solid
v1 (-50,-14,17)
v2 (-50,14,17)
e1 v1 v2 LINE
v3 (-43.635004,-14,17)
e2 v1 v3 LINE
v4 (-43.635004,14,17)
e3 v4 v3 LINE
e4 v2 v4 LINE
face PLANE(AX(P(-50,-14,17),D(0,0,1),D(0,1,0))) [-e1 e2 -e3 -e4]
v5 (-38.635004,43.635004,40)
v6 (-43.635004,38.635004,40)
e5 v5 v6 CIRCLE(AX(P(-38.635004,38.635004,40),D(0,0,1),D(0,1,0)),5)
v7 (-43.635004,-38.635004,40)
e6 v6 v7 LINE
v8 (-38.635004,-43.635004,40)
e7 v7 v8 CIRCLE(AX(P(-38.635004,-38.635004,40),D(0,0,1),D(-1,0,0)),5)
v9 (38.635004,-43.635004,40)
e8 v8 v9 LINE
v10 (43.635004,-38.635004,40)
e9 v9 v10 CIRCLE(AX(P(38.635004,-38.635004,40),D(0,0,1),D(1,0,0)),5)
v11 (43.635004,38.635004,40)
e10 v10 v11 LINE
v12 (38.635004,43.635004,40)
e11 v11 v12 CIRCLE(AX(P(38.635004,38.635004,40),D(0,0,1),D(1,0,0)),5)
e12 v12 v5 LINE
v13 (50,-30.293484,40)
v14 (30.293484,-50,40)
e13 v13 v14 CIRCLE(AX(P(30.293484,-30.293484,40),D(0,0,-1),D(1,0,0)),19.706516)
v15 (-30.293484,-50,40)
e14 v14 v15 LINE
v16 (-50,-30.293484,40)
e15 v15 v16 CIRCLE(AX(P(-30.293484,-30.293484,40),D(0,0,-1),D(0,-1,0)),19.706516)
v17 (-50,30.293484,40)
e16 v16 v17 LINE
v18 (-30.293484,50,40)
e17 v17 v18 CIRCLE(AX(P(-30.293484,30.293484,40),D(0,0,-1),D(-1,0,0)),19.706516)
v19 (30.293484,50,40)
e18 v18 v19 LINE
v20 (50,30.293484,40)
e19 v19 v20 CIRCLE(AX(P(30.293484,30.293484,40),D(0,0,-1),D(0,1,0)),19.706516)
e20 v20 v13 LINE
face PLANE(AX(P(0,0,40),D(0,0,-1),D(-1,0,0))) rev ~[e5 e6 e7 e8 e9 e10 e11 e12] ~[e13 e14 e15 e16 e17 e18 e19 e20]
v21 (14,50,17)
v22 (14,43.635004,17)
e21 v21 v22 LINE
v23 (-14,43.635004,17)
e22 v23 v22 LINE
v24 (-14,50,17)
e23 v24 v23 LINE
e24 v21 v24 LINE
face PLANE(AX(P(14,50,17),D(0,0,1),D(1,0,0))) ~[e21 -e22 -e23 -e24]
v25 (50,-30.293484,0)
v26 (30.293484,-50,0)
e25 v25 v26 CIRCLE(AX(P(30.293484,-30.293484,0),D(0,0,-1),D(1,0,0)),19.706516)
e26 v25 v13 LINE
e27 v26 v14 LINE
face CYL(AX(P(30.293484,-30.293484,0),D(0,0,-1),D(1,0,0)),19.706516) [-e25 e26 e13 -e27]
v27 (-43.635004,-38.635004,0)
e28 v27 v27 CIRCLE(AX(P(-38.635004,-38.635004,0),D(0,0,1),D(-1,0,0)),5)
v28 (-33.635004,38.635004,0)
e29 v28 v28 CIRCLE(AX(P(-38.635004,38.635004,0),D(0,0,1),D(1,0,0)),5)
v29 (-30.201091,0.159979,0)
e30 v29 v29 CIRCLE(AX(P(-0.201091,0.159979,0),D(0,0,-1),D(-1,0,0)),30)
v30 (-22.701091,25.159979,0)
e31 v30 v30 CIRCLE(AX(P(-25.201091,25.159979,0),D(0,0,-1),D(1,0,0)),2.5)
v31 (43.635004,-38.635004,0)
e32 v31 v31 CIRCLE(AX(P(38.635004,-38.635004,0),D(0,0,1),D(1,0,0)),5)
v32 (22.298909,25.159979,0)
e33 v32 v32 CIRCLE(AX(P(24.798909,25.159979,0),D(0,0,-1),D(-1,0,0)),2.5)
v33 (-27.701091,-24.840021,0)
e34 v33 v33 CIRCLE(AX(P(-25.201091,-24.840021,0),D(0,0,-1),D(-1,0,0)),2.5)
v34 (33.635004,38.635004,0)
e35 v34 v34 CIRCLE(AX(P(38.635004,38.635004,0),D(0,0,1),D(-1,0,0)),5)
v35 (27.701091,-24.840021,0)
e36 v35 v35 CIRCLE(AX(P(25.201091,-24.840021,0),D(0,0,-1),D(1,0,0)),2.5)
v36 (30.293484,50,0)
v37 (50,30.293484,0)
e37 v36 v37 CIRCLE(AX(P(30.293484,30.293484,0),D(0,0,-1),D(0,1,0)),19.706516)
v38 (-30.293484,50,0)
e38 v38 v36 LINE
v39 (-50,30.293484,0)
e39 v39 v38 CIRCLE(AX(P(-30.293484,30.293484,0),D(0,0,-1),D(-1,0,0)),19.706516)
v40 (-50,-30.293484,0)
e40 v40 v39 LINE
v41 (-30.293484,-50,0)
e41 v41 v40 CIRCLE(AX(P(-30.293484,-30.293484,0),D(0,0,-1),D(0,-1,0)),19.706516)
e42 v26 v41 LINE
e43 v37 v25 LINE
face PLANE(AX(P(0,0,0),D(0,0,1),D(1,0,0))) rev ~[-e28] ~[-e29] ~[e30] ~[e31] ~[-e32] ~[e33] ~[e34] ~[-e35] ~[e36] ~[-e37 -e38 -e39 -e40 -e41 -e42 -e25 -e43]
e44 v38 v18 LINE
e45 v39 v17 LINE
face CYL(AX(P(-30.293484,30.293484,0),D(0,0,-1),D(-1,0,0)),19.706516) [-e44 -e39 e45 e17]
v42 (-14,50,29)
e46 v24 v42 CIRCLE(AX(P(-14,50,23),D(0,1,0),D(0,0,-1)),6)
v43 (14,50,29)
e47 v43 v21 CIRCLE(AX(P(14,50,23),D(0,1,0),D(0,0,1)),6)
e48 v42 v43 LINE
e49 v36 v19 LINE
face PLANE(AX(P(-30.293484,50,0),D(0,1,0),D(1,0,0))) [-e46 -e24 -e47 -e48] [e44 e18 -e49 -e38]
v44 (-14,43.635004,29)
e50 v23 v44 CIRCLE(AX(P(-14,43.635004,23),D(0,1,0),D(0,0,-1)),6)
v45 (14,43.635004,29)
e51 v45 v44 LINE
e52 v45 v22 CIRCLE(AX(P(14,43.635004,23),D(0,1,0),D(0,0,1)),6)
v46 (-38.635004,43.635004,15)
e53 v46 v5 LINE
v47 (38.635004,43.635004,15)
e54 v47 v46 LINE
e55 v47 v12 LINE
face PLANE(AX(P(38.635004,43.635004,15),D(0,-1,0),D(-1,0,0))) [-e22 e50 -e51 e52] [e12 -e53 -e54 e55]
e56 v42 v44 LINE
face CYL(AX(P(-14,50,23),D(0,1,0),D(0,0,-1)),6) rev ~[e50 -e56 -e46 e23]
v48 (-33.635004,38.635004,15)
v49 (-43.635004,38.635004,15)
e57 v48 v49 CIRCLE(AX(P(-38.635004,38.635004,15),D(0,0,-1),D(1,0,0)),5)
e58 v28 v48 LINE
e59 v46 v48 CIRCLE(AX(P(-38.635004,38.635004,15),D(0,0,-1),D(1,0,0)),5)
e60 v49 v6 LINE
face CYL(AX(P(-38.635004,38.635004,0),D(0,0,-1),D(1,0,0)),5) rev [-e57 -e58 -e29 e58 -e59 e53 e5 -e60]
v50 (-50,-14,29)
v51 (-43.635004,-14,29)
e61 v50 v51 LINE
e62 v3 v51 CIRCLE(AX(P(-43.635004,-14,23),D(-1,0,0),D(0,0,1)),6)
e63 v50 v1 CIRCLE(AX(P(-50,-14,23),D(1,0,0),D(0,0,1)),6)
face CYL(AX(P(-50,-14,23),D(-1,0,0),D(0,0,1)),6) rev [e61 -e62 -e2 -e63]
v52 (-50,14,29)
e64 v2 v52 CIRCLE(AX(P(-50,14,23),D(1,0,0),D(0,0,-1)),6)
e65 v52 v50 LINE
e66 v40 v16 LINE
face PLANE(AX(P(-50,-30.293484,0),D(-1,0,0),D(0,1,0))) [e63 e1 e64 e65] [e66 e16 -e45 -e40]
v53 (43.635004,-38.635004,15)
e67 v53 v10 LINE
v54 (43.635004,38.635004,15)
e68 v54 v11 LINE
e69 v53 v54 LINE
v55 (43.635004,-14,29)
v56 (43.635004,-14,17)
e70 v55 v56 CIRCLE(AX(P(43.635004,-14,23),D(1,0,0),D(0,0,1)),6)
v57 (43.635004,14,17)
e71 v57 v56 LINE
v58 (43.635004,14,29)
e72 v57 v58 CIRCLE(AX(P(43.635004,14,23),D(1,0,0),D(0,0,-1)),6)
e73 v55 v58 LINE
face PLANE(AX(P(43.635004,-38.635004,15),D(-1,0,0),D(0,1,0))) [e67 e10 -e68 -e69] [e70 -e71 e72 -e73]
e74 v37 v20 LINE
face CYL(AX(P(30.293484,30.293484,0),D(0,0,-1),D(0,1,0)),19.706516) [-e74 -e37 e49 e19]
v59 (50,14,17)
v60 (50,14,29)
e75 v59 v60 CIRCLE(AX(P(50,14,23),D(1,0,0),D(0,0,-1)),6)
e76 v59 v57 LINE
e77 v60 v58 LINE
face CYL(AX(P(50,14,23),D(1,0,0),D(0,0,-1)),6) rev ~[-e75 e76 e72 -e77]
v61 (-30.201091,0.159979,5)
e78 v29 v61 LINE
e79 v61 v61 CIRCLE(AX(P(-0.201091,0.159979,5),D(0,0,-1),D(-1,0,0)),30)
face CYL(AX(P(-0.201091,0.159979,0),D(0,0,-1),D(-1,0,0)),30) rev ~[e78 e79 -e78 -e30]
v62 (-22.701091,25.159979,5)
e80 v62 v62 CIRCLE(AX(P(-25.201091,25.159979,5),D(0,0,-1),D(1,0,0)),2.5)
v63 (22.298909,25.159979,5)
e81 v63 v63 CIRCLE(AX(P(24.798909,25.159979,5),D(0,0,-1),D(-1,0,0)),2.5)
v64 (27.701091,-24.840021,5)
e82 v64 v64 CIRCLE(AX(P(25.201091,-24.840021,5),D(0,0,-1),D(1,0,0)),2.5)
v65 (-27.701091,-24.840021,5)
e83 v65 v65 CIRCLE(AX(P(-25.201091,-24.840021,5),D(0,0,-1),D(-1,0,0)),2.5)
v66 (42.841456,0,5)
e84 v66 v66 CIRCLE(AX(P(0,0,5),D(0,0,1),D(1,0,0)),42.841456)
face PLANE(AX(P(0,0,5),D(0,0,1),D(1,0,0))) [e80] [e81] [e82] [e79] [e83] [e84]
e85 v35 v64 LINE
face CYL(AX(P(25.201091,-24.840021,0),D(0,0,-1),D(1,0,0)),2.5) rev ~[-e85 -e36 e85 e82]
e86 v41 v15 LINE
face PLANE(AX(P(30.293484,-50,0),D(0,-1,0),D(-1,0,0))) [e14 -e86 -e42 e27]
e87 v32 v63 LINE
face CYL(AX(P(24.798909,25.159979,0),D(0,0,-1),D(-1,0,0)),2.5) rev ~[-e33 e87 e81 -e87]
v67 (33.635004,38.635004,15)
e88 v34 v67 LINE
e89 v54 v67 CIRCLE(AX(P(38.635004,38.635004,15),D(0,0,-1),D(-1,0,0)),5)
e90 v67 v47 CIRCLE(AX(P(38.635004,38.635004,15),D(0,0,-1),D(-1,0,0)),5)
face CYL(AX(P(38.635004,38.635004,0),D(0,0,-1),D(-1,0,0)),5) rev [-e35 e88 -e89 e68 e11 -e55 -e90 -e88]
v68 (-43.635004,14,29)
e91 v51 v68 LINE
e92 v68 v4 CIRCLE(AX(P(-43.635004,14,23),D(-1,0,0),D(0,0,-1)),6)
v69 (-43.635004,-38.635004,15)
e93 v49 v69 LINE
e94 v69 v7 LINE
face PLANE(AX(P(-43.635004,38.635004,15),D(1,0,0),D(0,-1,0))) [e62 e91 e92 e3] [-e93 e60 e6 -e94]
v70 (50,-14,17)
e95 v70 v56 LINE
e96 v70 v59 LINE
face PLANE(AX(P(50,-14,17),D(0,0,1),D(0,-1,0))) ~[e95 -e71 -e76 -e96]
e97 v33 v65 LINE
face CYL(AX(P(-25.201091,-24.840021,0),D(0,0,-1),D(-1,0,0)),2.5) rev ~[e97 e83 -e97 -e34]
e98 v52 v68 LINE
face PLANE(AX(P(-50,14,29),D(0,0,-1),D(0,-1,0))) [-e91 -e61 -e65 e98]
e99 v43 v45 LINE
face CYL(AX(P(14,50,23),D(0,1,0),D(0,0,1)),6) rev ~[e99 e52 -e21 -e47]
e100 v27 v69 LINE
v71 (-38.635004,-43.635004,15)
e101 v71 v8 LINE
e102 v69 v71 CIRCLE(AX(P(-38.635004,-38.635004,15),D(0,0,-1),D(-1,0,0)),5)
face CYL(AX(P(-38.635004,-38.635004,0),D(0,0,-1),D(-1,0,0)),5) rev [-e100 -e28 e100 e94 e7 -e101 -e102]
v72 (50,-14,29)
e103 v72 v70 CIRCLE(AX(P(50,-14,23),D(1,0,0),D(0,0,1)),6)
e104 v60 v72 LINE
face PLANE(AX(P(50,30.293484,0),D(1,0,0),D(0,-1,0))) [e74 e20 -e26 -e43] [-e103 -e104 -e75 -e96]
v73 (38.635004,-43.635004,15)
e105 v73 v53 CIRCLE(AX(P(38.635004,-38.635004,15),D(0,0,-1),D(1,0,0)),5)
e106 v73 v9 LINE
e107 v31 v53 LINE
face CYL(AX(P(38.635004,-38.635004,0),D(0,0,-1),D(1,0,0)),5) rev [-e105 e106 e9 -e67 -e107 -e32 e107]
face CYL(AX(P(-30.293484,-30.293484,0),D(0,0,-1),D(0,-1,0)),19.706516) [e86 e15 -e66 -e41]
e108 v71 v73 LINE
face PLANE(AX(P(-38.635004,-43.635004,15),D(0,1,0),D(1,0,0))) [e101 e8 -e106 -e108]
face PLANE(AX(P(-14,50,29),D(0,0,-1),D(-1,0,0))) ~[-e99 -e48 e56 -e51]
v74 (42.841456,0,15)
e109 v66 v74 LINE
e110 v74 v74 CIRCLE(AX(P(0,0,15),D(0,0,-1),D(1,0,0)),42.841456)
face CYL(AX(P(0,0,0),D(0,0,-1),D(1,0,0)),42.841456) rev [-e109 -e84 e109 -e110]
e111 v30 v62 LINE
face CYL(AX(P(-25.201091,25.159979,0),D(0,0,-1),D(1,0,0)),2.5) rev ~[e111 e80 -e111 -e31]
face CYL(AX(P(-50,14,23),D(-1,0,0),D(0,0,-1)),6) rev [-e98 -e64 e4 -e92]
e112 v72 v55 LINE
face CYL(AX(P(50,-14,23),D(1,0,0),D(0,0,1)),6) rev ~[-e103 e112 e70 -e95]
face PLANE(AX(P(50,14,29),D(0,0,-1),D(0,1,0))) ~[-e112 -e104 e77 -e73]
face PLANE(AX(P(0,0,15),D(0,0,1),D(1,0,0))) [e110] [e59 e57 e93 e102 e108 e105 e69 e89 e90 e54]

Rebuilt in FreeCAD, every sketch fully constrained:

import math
import FreeCAD as App
import Part
import Sketcher
from FreeCAD import Vector

doc = App.newDocument("Part")
body = doc.addObject("PartDesign::Body", "Body")

sketch1 = doc.addObject("Sketcher::SketchObject", "Sketch")
body.addObject(sketch1)
sketch1.AttachmentSupport = (doc.XY_Plane, [""])
sketch1.MapMode = "FlatFace"
sketch1.addGeometry([
    Part.LineSegment(Vector(30, 50, 0), Vector(-30, 50, 0)),
    Part.ArcOfCircle(Part.Circle(Vector(-30, 30, 0), Vector(0, 0, 1), 20), math.radians(90), math.radians(180)),
    Part.LineSegment(Vector(-50, 30, 0), Vector(-50, -30, 0)),
    Part.ArcOfCircle(Part.Circle(Vector(-30, -30, 0), Vector(0, 0, 1), 20), math.radians(180), math.radians(270)),
    Part.LineSegment(Vector(-30, -50, 0), Vector(30, -50, 0)),
    Part.ArcOfCircle(Part.Circle(Vector(30, -30, 0), Vector(0, 0, 1), 20), math.radians(-90), math.radians(0)),
    Part.LineSegment(Vector(50, -30, 0), Vector(50, 30, 0)),
    Part.ArcOfCircle(Part.Circle(Vector(30, 30, 0), Vector(0, 0, 1), 20), math.radians(0), math.radians(90)),
    Part.Circle(Vector(39, -39, 0), Vector(0, 0, 1), 5),
    Part.Circle(Vector(-39, -39, 0), Vector(0, 0, 1), 5),
    Part.Circle(Vector(39, 39, 0), Vector(0, 0, 1), 5),
    Part.Circle(Vector(0, 0, 0), Vector(0, 0, 1), 43),
    Part.Circle(Vector(-39, 39, 0), Vector(0, 0, 1), 5),
], False)
sketch1.addConstraint([
    Sketcher.Constraint("Tangent", 0, 2, 1, 1),
    Sketcher.Constraint("Tangent", 1, 2, 2, 1),
    Sketcher.Constraint("Tangent", 2, 2, 3, 1),
    Sketcher.Constraint("Tangent", 3, 2, 4, 1),
    Sketcher.Constraint("Tangent", 4, 2, 5, 1),
    Sketcher.Constraint("Tangent", 5, 2, 6, 1),
    Sketcher.Constraint("Tangent", 6, 2, 7, 1),
    Sketcher.Constraint("Tangent", 7, 2, 0, 1),
    Sketcher.Constraint("Horizontal", 0),
    Sketcher.Constraint("Vertical", 2),
    Sketcher.Constraint("Horizontal", 4),
    Sketcher.Constraint("Vertical", 6),
    Sketcher.Constraint("Coincident", 11, 3, -1, 1),
    Sketcher.Constraint("Equal", 1, 3),
    Sketcher.Constraint("Equal", 3, 5),
    Sketcher.Constraint("Equal", 5, 7),
    Sketcher.Constraint("Equal", 8, 9),
    Sketcher.Constraint("Equal", 9, 10),
    Sketcher.Constraint("Equal", 10, 12),
    Sketcher.Constraint("Symmetric", 1, 3, 5, 3, -1, 1),
    Sketcher.Constraint("Symmetric", 9, 3, 10, 3, -1, 1),
    Sketcher.Constraint("Symmetric", 8, 3, 12, 3, -1, 1),
    Sketcher.Constraint("Symmetric", 8, 3, 9, 3, -2),
    Sketcher.Constraint("Equal", 4, 2),
    Sketcher.Constraint("Diameter", 8, 10.0),
    Sketcher.Constraint("DistanceY", -1, 1, 0, 2, 50.0),
    Sketcher.Constraint("Diameter", 11, 85.682913),
    Sketcher.Constraint("Radius", 1, 19.706516),
    Sketcher.Constraint("DistanceX", 5, 3, 8, 3, 8.34152),
    Sketcher.Constraint("DistanceY", 8, 3, 5, 3, 8.34152),
])
pad1 = doc.addObject("PartDesign::Pad", "Pad")
body.addObject(pad1)
pad1.Profile = sketch1
pad1.Length = 40

sketch2 = doc.addObject("Sketcher::SketchObject", "Sketch001")
body.addObject(sketch2)
sketch2.AttachmentSupport = (doc.XY_Plane, [""])
sketch2.MapMode = "FlatFace"
sketch2.addGeometry(Part.Circle(Vector(0, 0, 0), Vector(0, 0, 1), 43), False)
sketch2.addConstraint([
    Sketcher.Constraint("Coincident", 0, 3, -1, 1),
    Sketcher.Constraint("Diameter", 0, 85.682913),
])
pad2 = doc.addObject("PartDesign::Pad", "Pad001")
body.addObject(pad2)
pad2.Profile = sketch2
pad2.Length = 5

sketch3 = doc.addObject("Sketcher::SketchObject", "Sketch002")
body.addObject(sketch3)
sketch3.AttachmentSupport = (doc.XY_Plane, [""])
sketch3.MapMode = "FlatFace"
sketch3.AttachmentOffset = App.Placement(Vector(0, 0, 15), App.Rotation())
sketch3.addGeometry([
    Part.LineSegment(Vector(-39, 44, 0), Vector(39, 44, 0)),
    Part.ArcOfCircle(Part.Circle(Vector(39, 39, 0), Vector(0, 0, 1), 5), math.radians(0), math.radians(90)),
    Part.LineSegment(Vector(44, 39, 0), Vector(44, -39, 0)),
    Part.ArcOfCircle(Part.Circle(Vector(39, -39, 0), Vector(0, 0, 1), 5), math.radians(-90), math.radians(0)),
    Part.LineSegment(Vector(39, -44, 0), Vector(-39, -44, 0)),
    Part.ArcOfCircle(Part.Circle(Vector(-39, -39, 0), Vector(0, 0, 1), 5), math.radians(180), math.radians(270)),
    Part.LineSegment(Vector(-44, -39, 0), Vector(-44, 39, 0)),
    Part.ArcOfCircle(Part.Circle(Vector(-39, 39, 0), Vector(0, 0, 1), 5), math.radians(90), math.radians(180)),
], False)
sketch3.addConstraint([
    Sketcher.Constraint("Tangent", 0, 2, 1, 2),
    Sketcher.Constraint("Tangent", 1, 1, 2, 1),
    Sketcher.Constraint("Tangent", 2, 2, 3, 2),
    Sketcher.Constraint("Tangent", 3, 1, 4, 1),
    Sketcher.Constraint("Tangent", 4, 2, 5, 2),
    Sketcher.Constraint("Tangent", 5, 1, 6, 1),
    Sketcher.Constraint("Tangent", 6, 2, 7, 2),
    Sketcher.Constraint("Tangent", 7, 1, 0, 1),
    Sketcher.Constraint("Horizontal", 0),
    Sketcher.Constraint("Vertical", 2),
    Sketcher.Constraint("Horizontal", 4),
    Sketcher.Constraint("Vertical", 6),
    Sketcher.Constraint("Equal", 1, 3),
    Sketcher.Constraint("Equal", 3, 5),
    Sketcher.Constraint("Equal", 5, 7),
    Sketcher.Constraint("Symmetric", 1, 3, 5, 3, -1, 1),
    Sketcher.Constraint("Equal", 4, 2),
    Sketcher.Constraint("Radius", 1, 5.0),
    Sketcher.Constraint("DistanceX", 0, 1, 0, 2, 77.270008),
])
pocket1 = doc.addObject("PartDesign::Pocket", "Pocket")
body.addObject(pocket1)
pocket1.Profile = sketch3
pocket1.Length = 25
pocket1.Reversed = True

sketch4 = doc.addObject("Sketcher::SketchObject", "Sketch003")
body.addObject(sketch4)
sketch4.AttachmentSupport = (doc.XY_Plane, [""])
sketch4.MapMode = "FlatFace"
sketch4.addGeometry([
    Part.Circle(Vector(-0.2, 0.2, 0), Vector(0, 0, 1), 30),
    Part.Circle(Vector(24.8, 25.2, 0), Vector(0, 0, 1), 2.5),
    Part.Circle(Vector(-25.2, 25.2, 0), Vector(0, 0, 1), 2.5),
    Part.Circle(Vector(-25.2, -24.8, 0), Vector(0, 0, 1), 2.5),
    Part.Circle(Vector(25.2, -24.8, 0), Vector(0, 0, 1), 2.5),
], False)
sketch4.addConstraint([
    Sketcher.Constraint("Equal", 1, 2),
    Sketcher.Constraint("Equal", 2, 3),
    Sketcher.Constraint("Equal", 3, 4),
    Sketcher.Constraint("Symmetric", 3, 3, 4, 3, -2),
    Sketcher.Constraint("Horizontal", 1, 3, 2, 3),
    Sketcher.Constraint("Vertical", 2, 3, 3, 3),
    Sketcher.Constraint("Diameter", 0, 60.0),
    Sketcher.Constraint("Diameter", 1, 5.0),
    Sketcher.Constraint("DistanceX", 0, 3, 1, 3, 25.0),
    Sketcher.Constraint("DistanceY", 0, 3, 1, 3, 25.0),
    Sketcher.Constraint("DistanceX", 2, 3, 0, 3, 25.0),
    Sketcher.Constraint("DistanceY", 3, 3, 0, 3, 25.0),
    Sketcher.Constraint("DistanceX", 0, 3, -1, 1, 0.201091),
    Sketcher.Constraint("DistanceY", -1, 1, 0, 3, 0.159979),
])
pocket2 = doc.addObject("PartDesign::Pocket", "Pocket001")
body.addObject(pocket2)
pocket2.Profile = sketch4
pocket2.Type = "ThroughAll"
pocket2.Reversed = True

sketch5 = doc.addObject("Sketcher::SketchObject", "Sketch004")
body.addObject(sketch5)
sketch5.AttachmentSupport = (doc.YZ_Plane, [""])
sketch5.MapMode = "FlatFace"
sketch5.AttachmentOffset = App.Placement(Vector(0, 0, -50), App.Rotation())
sketch5.addGeometry([
    Part.LineSegment(Vector(-14, 29, 0), Vector(14, 29, 0)),
    Part.ArcOfCircle(Part.Circle(Vector(14, 23, 0), Vector(0, 0, 1), 6), math.radians(-90), math.radians(90)),
    Part.LineSegment(Vector(14, 17, 0), Vector(-14, 17, 0)),
    Part.ArcOfCircle(Part.Circle(Vector(-14, 23, 0), Vector(0, 0, 1), 6), math.radians(90), math.radians(270)),
], False)
sketch5.addConstraint([
    Sketcher.Constraint("Tangent", 0, 2, 1, 2),
    Sketcher.Constraint("Tangent", 1, 1, 2, 1),
    Sketcher.Constraint("Tangent", 2, 2, 3, 2),
    Sketcher.Constraint("Tangent", 3, 1, 0, 1),
    Sketcher.Constraint("Horizontal", 0),
    Sketcher.Constraint("Horizontal", 2),
    Sketcher.Constraint("Radius", 1, 6.0),
    Sketcher.Constraint("DistanceX", 0, 1, 0, 2, 28.0),
    Sketcher.Constraint("DistanceX", -1, 1, 1, 3, 14.0),
    Sketcher.Constraint("DistanceY", -1, 1, 1, 3, 23.0),
])
pocket3 = doc.addObject("PartDesign::Pocket", "Pocket002")
body.addObject(pocket3)
pocket3.Profile = sketch5
pocket3.Length = 10
pocket3.Reversed = True
doc.recompute()

mirrored = doc.addObject("PartDesign::Mirrored", "Mirrored")
body.addObject(mirrored)
mirrored.Originals = [pocket3]
mirrored.MirrorPlane = (doc.YZ_Plane, [""])
body.Tip = mirrored
doc.recompute()

datumplane = doc.addObject("PartDesign::Plane", "DatumPlane")
body.addObject(datumplane)
datumplane.Placement = App.Placement(Vector(0, 0, 0), App.Rotation(Vector(0.707106781, -0.707106781, 0), Vector(0, 0, -1), Vector(0.707106781, 0.707106781, 0), "ZXY"))
mirrored2 = doc.addObject("PartDesign::Mirrored", "Mirrored001")
body.addObject(mirrored2)
mirrored2.Originals = [pocket3]
mirrored2.MirrorPlane = (datumplane, [""])
body.Tip = mirrored2

doc.recompute()
